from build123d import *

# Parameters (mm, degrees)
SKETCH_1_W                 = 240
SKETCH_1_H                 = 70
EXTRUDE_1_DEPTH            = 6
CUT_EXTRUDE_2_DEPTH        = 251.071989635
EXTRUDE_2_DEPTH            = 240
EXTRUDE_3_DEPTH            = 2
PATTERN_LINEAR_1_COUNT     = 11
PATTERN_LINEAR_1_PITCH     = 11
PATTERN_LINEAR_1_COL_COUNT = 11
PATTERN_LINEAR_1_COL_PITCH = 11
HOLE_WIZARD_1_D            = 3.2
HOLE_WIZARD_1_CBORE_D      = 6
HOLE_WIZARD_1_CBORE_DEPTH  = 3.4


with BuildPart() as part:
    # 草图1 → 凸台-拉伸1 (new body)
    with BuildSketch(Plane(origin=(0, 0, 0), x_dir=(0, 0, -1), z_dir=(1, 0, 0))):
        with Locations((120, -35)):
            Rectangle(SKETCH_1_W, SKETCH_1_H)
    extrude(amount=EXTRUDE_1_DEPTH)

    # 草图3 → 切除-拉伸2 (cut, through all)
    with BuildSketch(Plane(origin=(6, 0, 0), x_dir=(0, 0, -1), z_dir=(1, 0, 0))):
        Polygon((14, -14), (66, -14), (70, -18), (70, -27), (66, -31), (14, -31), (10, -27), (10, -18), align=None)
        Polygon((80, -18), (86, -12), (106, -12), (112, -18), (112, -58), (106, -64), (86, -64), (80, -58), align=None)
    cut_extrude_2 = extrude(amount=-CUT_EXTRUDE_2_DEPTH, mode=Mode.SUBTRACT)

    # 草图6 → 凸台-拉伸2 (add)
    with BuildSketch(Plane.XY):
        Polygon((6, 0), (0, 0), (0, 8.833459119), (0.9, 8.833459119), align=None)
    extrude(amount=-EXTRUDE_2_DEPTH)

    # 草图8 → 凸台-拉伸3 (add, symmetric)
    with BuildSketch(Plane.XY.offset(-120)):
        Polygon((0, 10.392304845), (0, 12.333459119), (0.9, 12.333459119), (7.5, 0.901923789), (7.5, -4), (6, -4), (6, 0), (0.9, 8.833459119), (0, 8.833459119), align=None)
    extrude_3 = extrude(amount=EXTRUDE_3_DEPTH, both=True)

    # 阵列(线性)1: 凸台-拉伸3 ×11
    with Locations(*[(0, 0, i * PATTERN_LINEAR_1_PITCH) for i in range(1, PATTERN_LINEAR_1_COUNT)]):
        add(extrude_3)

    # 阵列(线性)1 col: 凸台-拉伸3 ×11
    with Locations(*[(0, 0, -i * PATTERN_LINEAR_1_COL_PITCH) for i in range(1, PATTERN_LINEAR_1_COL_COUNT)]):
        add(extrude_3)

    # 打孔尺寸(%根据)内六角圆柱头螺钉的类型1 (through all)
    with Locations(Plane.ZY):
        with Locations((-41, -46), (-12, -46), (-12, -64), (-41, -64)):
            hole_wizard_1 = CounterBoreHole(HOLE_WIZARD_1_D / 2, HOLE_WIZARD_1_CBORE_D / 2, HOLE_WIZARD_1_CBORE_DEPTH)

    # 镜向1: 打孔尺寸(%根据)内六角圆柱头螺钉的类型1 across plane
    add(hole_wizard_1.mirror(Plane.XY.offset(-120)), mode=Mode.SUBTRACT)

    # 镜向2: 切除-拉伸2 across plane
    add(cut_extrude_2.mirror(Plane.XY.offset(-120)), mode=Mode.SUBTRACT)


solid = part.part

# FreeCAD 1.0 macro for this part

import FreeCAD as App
import Part
import Sketcher
from FreeCAD import Vector
Q = App.Units.Quantity

doc = App.newDocument("Part")
params = doc.addObject("Spreadsheet::Sheet", "Params")
for row, (alias, value) in enumerate([
    ("sketch1_width", "70 mm"),
    ("sketch1_height", "240 mm"),
    ("pad1_length", "6 mm"),
    ("sketch2_width", "9 mm"),
    ("sketch2_width2", "40 mm"),
    ("sketch2_height", "52 mm"),
    ("sketch2_height2", "20 mm"),
    ("sketch3_width", "6 mm"),
    ("sketch3_width2", "0.9 mm"),
    ("pad2_length", "240 mm"),
    ("sketch4_height", "4 mm"),
    ("sketch4_width", "0.9 mm"),
    ("sketch4_width2", "1.5 mm"),
    ("sketch4_height2", "3.5 mm"),
    ("pad3_length", "4 mm"),
    ("linearpattern_pitch", "11 mm"),
    ("linearpattern2_pitch", "11 mm"),
    ("sketch5_diameter", "3.2 mm"),
    ("hole_diameter", "3.2 mm"),
    ("hole_cbore_diameter", "6 mm"),
    ("hole_cbore_depth", "3.4 mm"),
], start=1):
    params.set(f"A{row}", alias)
    params.set(f"B{row}", "=" + value)
    params.setAlias(f"B{row}", alias)

body = doc.addObject("PartDesign::Body", "Body")

# Sketch on YZ plane
sketch1 = body.newObject("Sketcher::SketchObject", "Sketch")
sketch1.AttachmentSupport = (doc.getObject("YZ_Plane"), [""])
sketch1.MapMode = "FlatFace"
sketch1.addGeometry([
    Part.LineSegment(Vector(0, 0, 0), Vector(-70, 0, 0)),
    Part.LineSegment(Vector(-70, 0, 0), Vector(-70, -240, 0)),
    Part.LineSegment(Vector(-70, -240, 0), Vector(0, -240, 0)),
    Part.LineSegment(Vector(0, -240, 0), Vector(0, 0, 0)),
], False)
sketch1.addConstraint([
    Sketcher.Constraint("Coincident", 0, 2, 1, 1),
    Sketcher.Constraint("Coincident", 1, 2, 2, 1),
    Sketcher.Constraint("Coincident", 2, 2, 3, 1),
    Sketcher.Constraint("Coincident", 3, 2, 0, 1),
    Sketcher.Constraint("Horizontal", 0),
    Sketcher.Constraint("Vertical", 1),
    Sketcher.Constraint("Horizontal", 2),
    Sketcher.Constraint("Vertical", 3),
    Sketcher.Constraint("Coincident", 3, 2, -1, 1),
    Sketcher.Constraint("DistanceX", 0, 2, 0, 1, Q("70 mm")),
    Sketcher.Constraint("DistanceY", 1, 2, 1, 1, Q("240 mm")),
])
sketch1.setExpression("Constraints[9]", "Params.sketch1_width")
sketch1.setExpression("Constraints[10]", "Params.sketch1_height")
pad1 = body.newObject("PartDesign::Pad", "Pad")
pad1.Profile = sketch1
pad1.setExpression("Length", "Params.pad1_length")

# Sketch on YZ plane
sketch2 = body.newObject("Sketcher::SketchObject", "Sketch001")
sketch2.AttachmentSupport = (doc.getObject("YZ_Plane"), [""])
sketch2.MapMode = "FlatFace"
sketch2.AttachmentOffset = App.Placement(Vector(0, 0, 6), App.Rotation())
sketch2.addGeometry([
    Part.LineSegment(Vector(-14, -66, 0), Vector(-14, -14, 0)),  # 0
    Part.LineSegment(Vector(-14, -14, 0), Vector(-18, -10, 0)),  # 1
    Part.LineSegment(Vector(-18, -10, 0), Vector(-27, -10, 0)),  # 2
    Part.LineSegment(Vector(-27, -10, 0), Vector(-31, -14, 0)),  # 3
    Part.LineSegment(Vector(-31, -14, 0), Vector(-31, -66, 0)),  # 4
    Part.LineSegment(Vector(-31, -66, 0), Vector(-27, -70, 0)),  # 5
    Part.LineSegment(Vector(-27, -70, 0), Vector(-18, -70, 0)),  # 6
    Part.LineSegment(Vector(-18, -70, 0), Vector(-14, -66, 0)),  # 7
    Part.LineSegment(Vector(-12, -86, 0), Vector(-18, -80, 0)),  # 8
    Part.LineSegment(Vector(-18, -80, 0), Vector(-58, -80, 0)),  # 9
    Part.LineSegment(Vector(-58, -80, 0), Vector(-64, -86, 0)),  # 10
    Part.LineSegment(Vector(-64, -86, 0), Vector(-64, -106, 0)),  # 11
    Part.LineSegment(Vector(-64, -106, 0), Vector(-58, -112, 0)),  # 12
    Part.LineSegment(Vector(-58, -112, 0), Vector(-18, -112, 0)),  # 13
    Part.LineSegment(Vector(-18, -112, 0), Vector(-12, -106, 0)),  # 14
    Part.LineSegment(Vector(-12, -106, 0), Vector(-12, -86, 0)),  # 15
], False)
sketch2.addConstraint([
    Sketcher.Constraint("Coincident", 0, 2, 1, 1),
    Sketcher.Constraint("Coincident", 1, 2, 2, 1),
    Sketcher.Constraint("Coincident", 2, 2, 3, 1),
    Sketcher.Constraint("Coincident", 3, 2, 4, 1),
    Sketcher.Constraint("Coincident", 4, 2, 5, 1),
    Sketcher.Constraint("Coincident", 5, 2, 6, 1),
    Sketcher.Constraint("Coincident", 6, 2, 7, 1),
    Sketcher.Constraint("Coincident", 7, 2, 0, 1),
    Sketcher.Constraint("Coincident", 8, 2, 9, 1),
    Sketcher.Constraint("Coincident", 9, 2, 10, 1),
    Sketcher.Constraint("Coincident", 10, 2, 11, 1),
    Sketcher.Constraint("Coincident", 11, 2, 12, 1),
    Sketcher.Constraint("Coincident", 12, 2, 13, 1),
    Sketcher.Constraint("Coincident", 13, 2, 14, 1),
    Sketcher.Constraint("Coincident", 14, 2, 15, 1),
    Sketcher.Constraint("Coincident", 15, 2, 8, 1),
    Sketcher.Constraint("Vertical", 0),
    Sketcher.Constraint("Horizontal", 2),
    Sketcher.Constraint("Vertical", 4),
    Sketcher.Constraint("Horizontal", 6),
    Sketcher.Constraint("Horizontal", 9),
    Sketcher.Constraint("Vertical", 11),
    Sketcher.Constraint("Horizontal", 13),
    Sketcher.Constraint("Vertical", 15),
    Sketcher.Constraint("Perpendicular", 1, 3),
    Sketcher.Constraint("Perpendicular", 3, 5),
    Sketcher.Constraint("Perpendicular", 5, 7),
    Sketcher.Constraint("Perpendicular", 7, 8),
    Sketcher.Constraint("Perpendicular", 8, 10),
    Sketcher.Constraint("Perpendicular", 10, 12),
    Sketcher.Constraint("Perpendicular", 12, 14),
    Sketcher.Constraint("Horizontal", 0, 2, 3, 2),
    Sketcher.Constraint("Horizontal", 4, 2, 7, 2),
    Sketcher.Constraint("Horizontal", 11, 2, 14, 2),
    Sketcher.Constraint("Horizontal", 10, 2, 15, 2),
    Sketcher.Constraint("Vertical", 2, 2, 5, 2),
    Sketcher.Constraint("Vertical", 1, 2, 6, 2),
    Sketcher.Constraint("Vertical", 6, 2, 8, 2),
    Sketcher.Constraint("Vertical", 9, 2, 12, 2),
    Sketcher.Constraint("DistanceX", 2, 2, 2, 1, Q("9 mm")),
    Sketcher.Constraint("DistanceX", 9, 2, 9, 1, Q("40 mm")),
    Sketcher.Constraint("DistanceY", 0, 1, 0, 2, Q("52 mm")),
    Sketcher.Constraint("DistanceY", 11, 2, 11, 1, Q("20 mm")),
    Sketcher.Constraint("DistanceX", 0, 2, -1, 1, Q("14 mm")),
    Sketcher.Constraint("DistanceY", 0, 2, -1, 1, Q("14 mm")),
    Sketcher.Constraint("DistanceX", 1, 2, -1, 1, Q("18 mm")),
    Sketcher.Constraint("DistanceY", 8, 2, -1, 1, Q("80 mm")),
    Sketcher.Constraint("DistanceX", 10, 2, -1, 1, Q("64 mm")),
])
sketch2.setExpression("Constraints[39]", "Params.sketch2_width")
sketch2.setExpression("Constraints[40]", "Params.sketch2_width2")
sketch2.setExpression("Constraints[41]", "Params.sketch2_height")
sketch2.setExpression("Constraints[42]", "Params.sketch2_height2")
pocket1 = body.newObject("PartDesign::Pocket", "Pocket")
pocket1.Profile = sketch2
pocket1.Type = "ThroughAll"

# Sketch on XY plane
sketch3 = body.newObject("Sketcher::SketchObject", "Sketch002")
sketch3.AttachmentSupport = (doc.getObject("XY_Plane"), [""])
sketch3.MapMode = "FlatFace"
sketch3.addGeometry([
    Part.LineSegment(Vector(0, 0, 0), Vector(6, 0, 0)),
    Part.LineSegment(Vector(6, 0, 0), Vector(0.9, 8.8, 0)),
    Part.LineSegment(Vector(0.9, 8.8, 0), Vector(0, 8.8, 0)),
    Part.LineSegment(Vector(0, 8.8, 0), Vector(0, 0, 0)),
], False)
sketch3.addConstraint([
    Sketcher.Constraint("Coincident", 0, 2, 1, 1),
    Sketcher.Constraint("Coincident", 1, 2, 2, 1),
    Sketcher.Constraint("Coincident", 2, 2, 3, 1),
    Sketcher.Constraint("Coincident", 3, 2, 0, 1),
    Sketcher.Constraint("Horizontal", 0),
    Sketcher.Constraint("Horizontal", 2),
    Sketcher.Constraint("Vertical", 3),
    Sketcher.Constraint("Coincident", 3, 2, -1, 1),
    Sketcher.Constraint("DistanceX", 0, 1, 0, 2, Q("6 mm")),
    Sketcher.Constraint("Angle", 1, Q("120 deg")),
    Sketcher.Constraint("DistanceX", 2, 2, 2, 1, Q("0.9 mm")),
])
sketch3.setExpression("Constraints[8]", "Params.sketch3_width")
sketch3.setExpression("Constraints[10]", "Params.sketch3_width2")
pad2 = body.newObject("PartDesign::Pad", "Pad001")
pad2.Profile = sketch3
pad2.setExpression("Length", "Params.pad2_length")
pad2.Reversed = True

# Sketch on XY plane
sketch4 = body.newObject("Sketcher::SketchObject", "Sketch003")
sketch4.AttachmentSupport = (doc.getObject("XY_Plane"), [""])
sketch4.MapMode = "FlatFace"
sketch4.AttachmentOffset = App.Placement(Vector(0, 0, -120), App.Rotation())
sketch4.addGeometry([
    Part.LineSegment(Vector(0, 12.3, 0), Vector(0, 8.8, 0)),  # 0
    Part.LineSegment(Vector(0, 8.8, 0), Vector(0.9, 8.8, 0)),  # 1
    Part.LineSegment(Vector(0.9, 8.8, 0), Vector(6, 0, 0)),  # 2
    Part.LineSegment(Vector(6, 0, 0), Vector(6, -4, 0)),  # 3
    Part.LineSegment(Vector(6, -4, 0), Vector(7.5, -4, 0)),  # 4
    Part.LineSegment(Vector(7.5, -4, 0), Vector(7.5, 0.9, 0)),  # 5
    Part.LineSegment(Vector(7.5, 0.9, 0), Vector(0.9, 12.3, 0)),  # 6
    Part.LineSegment(Vector(0.9, 12.3, 0), Vector(0, 12.3, 0)),  # 7
], False)
sketch4.addConstraint([
    Sketcher.Constraint("Coincident", 0, 2, 1, 1),
    Sketcher.Constraint("Coincident", 1, 2, 2, 1),
    Sketcher.Constraint("Coincident", 2, 2, 3, 1),
    Sketcher.Constraint("Coincident", 3, 2, 4, 1),
    Sketcher.Constraint("Coincident", 4, 2, 5, 1),
    Sketcher.Constraint("Coincident", 5, 2, 6, 1),
    Sketcher.Constraint("Coincident", 6, 2, 7, 1),
    Sketcher.Constraint("Coincident", 7, 2, 0, 1),
    Sketcher.Constraint("Vertical", 0),
    Sketcher.Constraint("Horizontal", 1),
    Sketcher.Constraint("Vertical", 3),
    Sketcher.Constraint("Horizontal", 4),
    Sketcher.Constraint("Vertical", 5),
    Sketcher.Constraint("Horizontal", 7),
    Sketcher.Constraint("PointOnObject", 0, 2, -2),
    Sketcher.Constraint("PointOnObject", 2, 2, -1),
    Sketcher.Constraint("Parallel", 2, 6),
    Sketcher.Constraint("Vertical", 1, 2, 6, 2),
    Sketcher.Constraint("DistanceY", 3, 2, 3, 1, Q("4 mm")),
    Sketcher.Constraint("Angle", 2, Q("-60 deg")),
    Sketcher.Constraint("DistanceX", 1, 1, 1, 2, Q("0.9 mm")),
    Sketcher.Constraint("DistanceX", 4, 1, 4, 2, Q("1.5 mm")),
    Sketcher.Constraint("DistanceY", 0, 2, 0, 1, Q("3.5 mm")),
    Sketcher.Constraint("DistanceX", -1, 1, 2, 2, Q("6 mm")),
])
sketch4.setExpression("Constraints[18]", "Params.sketch4_height")
sketch4.setExpression("Constraints[20]", "Params.sketch4_width")
sketch4.setExpression("Constraints[21]", "Params.sketch4_width2")
sketch4.setExpression("Constraints[22]", "Params.sketch4_height2")
pad3 = body.newObject("PartDesign::Pad", "Pad002")
pad3.Profile = sketch4
pad3.setExpression("Length", "Params.pad3_length")
pad3.Midplane = True
doc.recompute()

linearpattern = body.newObject("PartDesign::LinearPattern", "LinearPattern")
linearpattern.Originals = [pad3]
linearpattern.Direction = (doc.getObject("Z_Axis"), [""])
linearpattern.Mode = "offset"
linearpattern.setExpression("Offset", "Params.linearpattern_pitch")
linearpattern.Occurrences = 11
body.Tip = linearpattern
doc.recompute()

linearpattern2 = body.newObject("PartDesign::LinearPattern", "LinearPattern001")
linearpattern2.Originals = [pad3]
linearpattern2.Direction = (doc.getObject("Z_Axis"), [""])
linearpattern2.Mode = "offset"
linearpattern2.setExpression("Offset", "Params.linearpattern2_pitch")
linearpattern2.Occurrences = 11
linearpattern2.Reversed = True
body.Tip = linearpattern2

# Sketch on YZ plane
sketch5 = body.newObject("Sketcher::SketchObject", "Sketch004")
sketch5.AttachmentSupport = (doc.getObject("YZ_Plane"), [""])
sketch5.MapMode = "FlatFace"
sketch5.addGeometry([
    Part.Circle(Vector(-46, -41, 0), Vector(0, 0, 1), 1.6),
    Part.Circle(Vector(-46, -12, 0), Vector(0, 0, 1), 1.6),
    Part.Circle(Vector(-64, -12, 0), Vector(0, 0, 1), 1.6),
    Part.Circle(Vector(-64, -41, 0), Vector(0, 0, 1), 1.6),
], False)
sketch5.addConstraint([
    Sketcher.Constraint("Equal", 0, 1),
    Sketcher.Constraint("Equal", 1, 2),
    Sketcher.Constraint("Equal", 2, 3),
    Sketcher.Constraint("Horizontal", 1, 3, 2, 3),
    Sketcher.Constraint("Horizontal", 0, 3, 3, 3),
    Sketcher.Constraint("Vertical", 0, 3, 1, 3),
    Sketcher.Constraint("Vertical", 2, 3, 3, 3),
    Sketcher.Constraint("Diameter", 0, Q("3.2 mm")),
    Sketcher.Constraint("DistanceX", 0, 3, -1, 1, Q("46 mm")),
    Sketcher.Constraint("DistanceY", 0, 3, -1, 1, Q("41 mm")),
    Sketcher.Constraint("DistanceY", 1, 3, -1, 1, Q("12 mm")),
    Sketcher.Constraint("DistanceX", 2, 3, -1, 1, Q("64 mm")),
])
sketch5.setExpression("Constraints[7]", "Params.sketch5_diameter")
doc.recompute()
hole = body.newObject("PartDesign::Hole", "Hole")
hole.Profile = sketch5
hole.ThreadType = "None"
hole.setExpression("Diameter", "Params.hole_diameter")
hole.DepthType = "ThroughAll"
hole.HoleCutType = "Counterbore"
hole.setExpression("HoleCutDiameter", "Params.hole_cbore_diameter")
hole.setExpression("HoleCutDepth", "Params.hole_cbore_depth")
hole.Reversed = True
doc.recompute()

datumplane = body.newObject("PartDesign::Plane", "DatumPlane")
datumplane.AttachmentSupport = (doc.getObject("XY_Plane"), [""])
datumplane.MapMode = "FlatFace"
datumplane.AttachmentOffset = App.Placement(Vector(0, 0, -120), App.Rotation())
mirrored = body.newObject("PartDesign::Mirrored", "Mirrored")
mirrored.Originals = [hole]
mirrored.MirrorPlane = (datumplane, [""])
body.Tip = mirrored
doc.recompute()

datumplane2 = body.newObject("PartDesign::Plane", "DatumPlane001")
datumplane2.AttachmentSupport = (doc.getObject("XY_Plane"), [""])
datumplane2.MapMode = "FlatFace"
datumplane2.AttachmentOffset = App.Placement(Vector(0, 0, -120), App.Rotation())
mirrored2 = body.newObject("PartDesign::Mirrored", "Mirrored001")
mirrored2.Originals = [pocket1]
mirrored2.MirrorPlane = (datumplane2, [""])
body.Tip = mirrored2

doc.recompute()
